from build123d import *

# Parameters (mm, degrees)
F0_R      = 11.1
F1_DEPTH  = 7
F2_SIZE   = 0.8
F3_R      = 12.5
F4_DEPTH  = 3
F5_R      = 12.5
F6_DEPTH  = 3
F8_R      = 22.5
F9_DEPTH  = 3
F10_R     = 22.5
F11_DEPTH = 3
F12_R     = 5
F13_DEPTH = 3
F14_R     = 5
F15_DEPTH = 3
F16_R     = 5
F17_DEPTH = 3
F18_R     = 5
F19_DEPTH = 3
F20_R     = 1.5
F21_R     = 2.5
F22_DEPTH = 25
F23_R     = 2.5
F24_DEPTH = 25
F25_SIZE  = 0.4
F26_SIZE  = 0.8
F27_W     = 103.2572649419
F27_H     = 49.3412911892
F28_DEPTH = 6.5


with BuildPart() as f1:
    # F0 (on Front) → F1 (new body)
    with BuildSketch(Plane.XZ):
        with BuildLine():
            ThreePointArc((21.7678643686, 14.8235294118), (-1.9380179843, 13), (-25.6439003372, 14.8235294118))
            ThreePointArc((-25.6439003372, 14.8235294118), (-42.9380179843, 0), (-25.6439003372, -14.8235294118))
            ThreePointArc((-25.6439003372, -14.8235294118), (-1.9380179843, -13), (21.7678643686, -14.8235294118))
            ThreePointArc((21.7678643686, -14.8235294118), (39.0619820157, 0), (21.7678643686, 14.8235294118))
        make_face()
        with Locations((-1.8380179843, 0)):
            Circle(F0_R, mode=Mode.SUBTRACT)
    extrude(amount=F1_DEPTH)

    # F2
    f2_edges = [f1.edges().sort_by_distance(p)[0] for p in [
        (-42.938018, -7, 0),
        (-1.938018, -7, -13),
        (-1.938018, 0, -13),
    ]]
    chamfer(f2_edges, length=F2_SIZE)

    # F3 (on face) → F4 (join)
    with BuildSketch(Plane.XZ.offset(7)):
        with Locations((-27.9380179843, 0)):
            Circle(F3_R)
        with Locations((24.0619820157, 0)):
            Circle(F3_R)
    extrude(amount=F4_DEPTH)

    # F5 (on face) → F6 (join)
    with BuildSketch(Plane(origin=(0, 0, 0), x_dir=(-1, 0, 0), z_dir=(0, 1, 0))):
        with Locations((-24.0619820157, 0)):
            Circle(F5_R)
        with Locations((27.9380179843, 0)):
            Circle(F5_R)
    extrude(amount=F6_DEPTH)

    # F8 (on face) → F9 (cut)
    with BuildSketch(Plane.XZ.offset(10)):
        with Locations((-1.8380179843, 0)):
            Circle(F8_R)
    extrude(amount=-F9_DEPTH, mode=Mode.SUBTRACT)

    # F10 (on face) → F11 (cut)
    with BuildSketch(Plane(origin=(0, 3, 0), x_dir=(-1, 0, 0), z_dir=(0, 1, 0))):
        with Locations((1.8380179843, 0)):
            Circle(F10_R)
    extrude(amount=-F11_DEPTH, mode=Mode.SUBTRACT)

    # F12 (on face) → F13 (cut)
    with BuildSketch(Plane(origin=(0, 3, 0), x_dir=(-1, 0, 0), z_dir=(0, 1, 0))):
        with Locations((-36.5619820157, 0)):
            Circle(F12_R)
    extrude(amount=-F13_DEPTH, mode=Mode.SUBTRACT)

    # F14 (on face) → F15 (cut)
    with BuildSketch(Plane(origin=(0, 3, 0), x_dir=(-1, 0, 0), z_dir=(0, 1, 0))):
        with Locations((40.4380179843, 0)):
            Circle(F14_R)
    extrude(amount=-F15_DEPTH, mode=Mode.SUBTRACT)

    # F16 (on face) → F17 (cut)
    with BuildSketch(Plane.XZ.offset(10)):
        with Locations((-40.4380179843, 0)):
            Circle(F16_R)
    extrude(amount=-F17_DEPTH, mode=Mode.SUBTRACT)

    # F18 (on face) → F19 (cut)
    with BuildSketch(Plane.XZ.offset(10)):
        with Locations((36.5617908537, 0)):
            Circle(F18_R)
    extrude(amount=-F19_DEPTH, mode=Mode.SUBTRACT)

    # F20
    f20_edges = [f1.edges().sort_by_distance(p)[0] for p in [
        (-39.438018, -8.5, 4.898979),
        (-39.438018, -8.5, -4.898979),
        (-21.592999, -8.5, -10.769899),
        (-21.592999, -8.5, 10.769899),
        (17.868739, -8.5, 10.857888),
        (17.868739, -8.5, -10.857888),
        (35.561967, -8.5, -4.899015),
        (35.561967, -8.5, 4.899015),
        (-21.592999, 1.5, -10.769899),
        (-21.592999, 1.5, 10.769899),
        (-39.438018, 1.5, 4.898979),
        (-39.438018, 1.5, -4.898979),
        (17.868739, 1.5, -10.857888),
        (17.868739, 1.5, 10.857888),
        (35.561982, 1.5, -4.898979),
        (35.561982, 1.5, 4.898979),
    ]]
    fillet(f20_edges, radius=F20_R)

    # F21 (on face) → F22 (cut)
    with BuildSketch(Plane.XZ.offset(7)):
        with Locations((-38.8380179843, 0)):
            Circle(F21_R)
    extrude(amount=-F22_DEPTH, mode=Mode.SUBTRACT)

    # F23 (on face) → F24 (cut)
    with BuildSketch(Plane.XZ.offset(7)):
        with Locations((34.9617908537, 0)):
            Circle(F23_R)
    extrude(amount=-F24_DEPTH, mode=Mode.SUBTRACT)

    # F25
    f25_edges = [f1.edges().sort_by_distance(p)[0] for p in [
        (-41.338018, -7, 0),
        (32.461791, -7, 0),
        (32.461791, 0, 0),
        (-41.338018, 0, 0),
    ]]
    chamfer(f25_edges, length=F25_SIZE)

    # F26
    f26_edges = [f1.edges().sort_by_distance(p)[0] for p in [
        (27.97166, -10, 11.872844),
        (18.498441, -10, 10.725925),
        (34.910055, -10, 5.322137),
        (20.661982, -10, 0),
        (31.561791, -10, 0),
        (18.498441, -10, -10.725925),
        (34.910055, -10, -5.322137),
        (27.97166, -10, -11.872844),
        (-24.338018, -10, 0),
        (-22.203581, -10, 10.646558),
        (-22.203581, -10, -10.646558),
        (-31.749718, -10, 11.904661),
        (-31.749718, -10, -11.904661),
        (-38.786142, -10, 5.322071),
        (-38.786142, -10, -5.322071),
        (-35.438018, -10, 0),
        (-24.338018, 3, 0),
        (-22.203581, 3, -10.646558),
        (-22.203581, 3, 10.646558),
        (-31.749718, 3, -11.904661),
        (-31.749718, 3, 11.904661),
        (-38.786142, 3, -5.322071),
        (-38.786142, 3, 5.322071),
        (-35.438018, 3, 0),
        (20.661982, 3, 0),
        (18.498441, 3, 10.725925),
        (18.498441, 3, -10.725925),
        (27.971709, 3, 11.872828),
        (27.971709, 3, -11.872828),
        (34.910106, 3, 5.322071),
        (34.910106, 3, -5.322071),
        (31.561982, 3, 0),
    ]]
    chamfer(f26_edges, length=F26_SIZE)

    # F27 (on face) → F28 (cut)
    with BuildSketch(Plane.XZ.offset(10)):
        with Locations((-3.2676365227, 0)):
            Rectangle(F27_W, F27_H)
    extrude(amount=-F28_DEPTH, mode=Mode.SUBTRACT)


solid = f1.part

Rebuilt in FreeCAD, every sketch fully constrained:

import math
import FreeCAD as App
import Part
import Sketcher
from FreeCAD import Vector


def edges_at(feature, points):
    """Names of the edges that pass closest to the given points."""
    edges = feature.Shape.Edges
    near = lambda p: min(range(len(edges)), key=lambda i: edges[i].distToShape(Part.Vertex(*p))[0])
    return sorted({f"Edge{near(p) + 1}" for p in points})


def add_polygon(sketch, points):
    """Adds a closed chain of lines whose ends are joined by coincident constraints."""
    first, n = sketch.GeometryCount, len(points)
    for a, b in zip(points, points[1:] + points[:1]):
        sketch.addGeometry(Part.LineSegment(App.Vector(*a, 0), App.Vector(*b, 0)), False)
    for i in range(n):
        sketch.addConstraint(Sketcher.Constraint("Coincident", first + i, 2, first + (i + 1) % n, 1))

doc = App.newDocument("Part")
params = doc.addObject("Spreadsheet::Sheet", "Params")
for row, (alias, value) in enumerate([
    ("sketch1_radius", "155 mm"),
    ("sketch1_radius2", "15 mm"),
    ("sketch1_diameter", "22.2 mm"),
    ("pad1_length", "7 mm"),
    ("chamfer_size", "0.8 mm"),
    ("sketch2_diameter", "25 mm"),
    ("pad2_length", "3 mm"),
    ("sketch3_diameter", "25 mm"),
    ("pad3_length", "3 mm"),
    ("sketch4_diameter", "45 mm"),
    ("pocket1_length", "3 mm"),
    ("sketch5_diameter", "45 mm"),
    ("pocket2_length", "3 mm"),
    ("sketch6_diameter", "10 mm"),
    ("pocket3_length", "3 mm"),
    ("sketch7_diameter", "10 mm"),
    ("pocket4_length", "3 mm"),
    ("sketch8_diameter", "10 mm"),
    ("pocket5_length", "3 mm"),
    ("sketch9_diameter", "10 mm"),
    ("pocket6_length", "3 mm"),
    ("fillet_radius", "1.5 mm"),
    ("sketch10_diameter", "5 mm"),
    ("pocket7_length", "25 mm"),
    ("sketch11_diameter", "5 mm"),
    ("pocket8_length", "25 mm"),
    ("chamfer2_size", "0.4 mm"),
    ("chamfer3_size", "0.8 mm"),
    ("pocket9_length", "6.5 mm"),
], start=1):
    params.set(f"A{row}", alias)
    params.set(f"B{row}", "=" + value)
    params.setAlias(f"B{row}", alias)

body = doc.addObject("PartDesign::Body", "Body")

# Sketch on XZ plane
sketch1 = doc.addObject("Sketcher::SketchObject", "Sketch")
body.addObject(sketch1)
sketch1.AttachmentSupport = (doc.XZ_Plane, [""])
sketch1.MapMode = "FlatFace"
sketch1.addGeometry([
    Part.ArcOfCircle(Part.Circle(Vector(-2, 168, 0), Vector(0, 0, 1), 155), math.radians(-98.8), math.radians(-81.2)),  # 0
    Part.ArcOfCircle(Part.Circle(Vector(-28, 0, 0), Vector(0, 0, 1), 15), math.radians(81), math.radians(279)),  # 1
    Part.ArcOfCircle(Part.Circle(Vector(-2, -168, 0), Vector(0, 0, 1), 155), math.radians(81.2), math.radians(98.8)),  # 2
    Part.ArcOfCircle(Part.Circle(Vector(24, 0, 0), Vector(0, 0, 1), 15), math.radians(-99), math.radians(99)),  # 3
    Part.Circle(Vector(-2, 0, 0), Vector(0, 0, 1), 11),  # 4
], False)
sketch1.addConstraint([
    Sketcher.Constraint("Tangent", 0, 1, 1, 1),
    Sketcher.Constraint("Tangent", 1, 2, 2, 2),
    Sketcher.Constraint("Tangent", 2, 1, 3, 1),
    Sketcher.Constraint("Tangent", 3, 2, 0, 2),
    Sketcher.Constraint("Equal", 0, 2),
    Sketcher.Constraint("Equal", 1, 3),
    Sketcher.Constraint("Symmetric", 0, 3, 2, 3, -1),
    Sketcher.Constraint("PointOnObject", 4, 3, -1),
    Sketcher.Constraint("Radius", 0, 155.0),
    Sketcher.Constraint("Radius", 1, 15.0),
    Sketcher.Constraint("Diameter", 4, 22.2),
    Sketcher.Constraint("DistanceY", -1, 1, 0, 3, 168.0),
    Sketcher.Constraint("DistanceX", 4, 3, 3, 3, 25.9),
    Sketcher.Constraint("DistanceX", 0, 1, -1, 1, 25.6439),
])
sketch1.setExpression("Constraints[8]", "Params.sketch1_radius")
sketch1.setExpression("Constraints[9]", "Params.sketch1_radius2")
sketch1.setExpression("Constraints[10]", "Params.sketch1_diameter")
pad1 = doc.addObject("PartDesign::Pad", "Pad")
body.addObject(pad1)
pad1.Profile = sketch1
pad1.setExpression("Length", "Params.pad1_length")
doc.recompute()

chamfer = doc.addObject("PartDesign::Chamfer", "Chamfer")
body.addObject(chamfer)
chamfer.Base = (pad1, edges_at(pad1, [(-42.938, -7, 0), (-1.938, -7, -13), (-1.938, 0, -13)]))
chamfer.setExpression("Size", "Params.chamfer_size")

# Sketch on XZ plane
sketch2 = doc.addObject("Sketcher::SketchObject", "Sketch001")
body.addObject(sketch2)
sketch2.AttachmentSupport = (doc.XZ_Plane, [""])
sketch2.MapMode = "FlatFace"
sketch2.AttachmentOffset = App.Placement(Vector(0, 0, 7), App.Rotation())
sketch2.addGeometry([
    Part.Circle(Vector(-28, 0, 0), Vector(0, 0, 1), 12),
    Part.Circle(Vector(24, 0, 0), Vector(0, 0, 1), 12),
], False)
sketch2.addConstraint([
    Sketcher.Constraint("Equal", 0, 1),
    Sketcher.Constraint("PointOnObject", 0, 3, -1),
    Sketcher.Constraint("PointOnObject", 1, 3, -1),
    Sketcher.Constraint("Diameter", 0, 25.0),
    Sketcher.Constraint("DistanceX", 0, 3, 1, 3, 52.0),
    Sketcher.Constraint("DistanceX", 0, 3, -1, 1, 27.938018),
])
sketch2.setExpression("Constraints[3]", "Params.sketch2_diameter")
pad2 = doc.addObject("PartDesign::Pad", "Pad001")
body.addObject(pad2)
pad2.Profile = sketch2
pad2.setExpression("Length", "Params.pad2_length")

# Sketch on XZ plane
sketch3 = doc.addObject("Sketcher::SketchObject", "Sketch002")
body.addObject(sketch3)
sketch3.AttachmentSupport = (doc.XZ_Plane, [""])
sketch3.MapMode = "FlatFace"
sketch3.addGeometry([
    Part.Circle(Vector(24, 0, 0), Vector(0, 0, 1), 12),
    Part.Circle(Vector(-28, 0, 0), Vector(0, 0, 1), 12),
], False)
sketch3.addConstraint([
    Sketcher.Constraint("Equal", 0, 1),
    Sketcher.Constraint("PointOnObject", 0, 3, -1),
    Sketcher.Constraint("PointOnObject", 1, 3, -1),
    Sketcher.Constraint("Diameter", 0, 25.0),
    Sketcher.Constraint("DistanceX", 1, 3, 0, 3, 52.0),
    Sketcher.Constraint("DistanceX", -1, 1, 0, 3, 24.061982),
])
sketch3.setExpression("Constraints[3]", "Params.sketch3_diameter")
pad3 = doc.addObject("PartDesign::Pad", "Pad002")
body.addObject(pad3)
pad3.Profile = sketch3
pad3.setExpression("Length", "Params.pad3_length")
pad3.Reversed = True

# Sketch on XZ plane
sketch4 = doc.addObject("Sketcher::SketchObject", "Sketch003")
body.addObject(sketch4)
sketch4.AttachmentSupport = (doc.XZ_Plane, [""])
sketch4.MapMode = "FlatFace"
sketch4.AttachmentOffset = App.Placement(Vector(0, 0, 10), App.Rotation())
sketch4.addGeometry(Part.Circle(Vector(-2, 0, 0), Vector(0, 0, 1), 22), False)
sketch4.addConstraint([
    Sketcher.Constraint("PointOnObject", 0, 3, -1),
    Sketcher.Constraint("Diameter", 0, 45.0),
    Sketcher.Constraint("DistanceX", 0, 3, -1, 1, 1.838018),
])
sketch4.setExpression("Constraints[1]", "Params.sketch4_diameter")
pocket1 = doc.addObject("PartDesign::Pocket", "Pocket")
body.addObject(pocket1)
pocket1.Profile = sketch4
pocket1.setExpression("Length", "Params.pocket1_length")

# Sketch on XZ plane
sketch5 = doc.addObject("Sketcher::SketchObject", "Sketch004")
body.addObject(sketch5)
sketch5.AttachmentSupport = (doc.XZ_Plane, [""])
sketch5.MapMode = "FlatFace"
sketch5.AttachmentOffset = App.Placement(Vector(0, 0, -3), App.Rotation())
sketch5.addGeometry(Part.Circle(Vector(-2, 0, 0), Vector(0, 0, 1), 22), False)
sketch5.addConstraint([
    Sketcher.Constraint("PointOnObject", 0, 3, -1),
    Sketcher.Constraint("Diameter", 0, 45.0),
    Sketcher.Constraint("DistanceX", 0, 3, -1, 1, 1.838018),
])
sketch5.setExpression("Constraints[1]", "Params.sketch5_diameter")
pocket2 = doc.addObject("PartDesign::Pocket", "Pocket001")
body.addObject(pocket2)
pocket2.Profile = sketch5
pocket2.setExpression("Length", "Params.pocket2_length")
pocket2.Reversed = True

# Sketch on XZ plane
sketch6 = doc.addObject("Sketcher::SketchObject", "Sketch005")
body.addObject(sketch6)
sketch6.AttachmentSupport = (doc.XZ_Plane, [""])
sketch6.MapMode = "FlatFace"
sketch6.AttachmentOffset = App.Placement(Vector(0, 0, -3), App.Rotation())
sketch6.addGeometry(Part.Circle(Vector(37, 0, 0), Vector(0, 0, 1), 5), False)
sketch6.addConstraint([
    Sketcher.Constraint("PointOnObject", 0, 3, -1),
    Sketcher.Constraint("Diameter", 0, 10.0),
    Sketcher.Constraint("DistanceX", -1, 1, 0, 3, 36.561982),
])
sketch6.setExpression("Constraints[1]", "Params.sketch6_diameter")
pocket3 = doc.addObject("PartDesign::Pocket", "Pocket002")
body.addObject(pocket3)
pocket3.Profile = sketch6
pocket3.setExpression("Length", "Params.pocket3_length")
pocket3.Reversed = True

# Sketch on XZ plane
sketch7 = doc.addObject("Sketcher::SketchObject", "Sketch006")
body.addObject(sketch7)
sketch7.AttachmentSupport = (doc.XZ_Plane, [""])
sketch7.MapMode = "FlatFace"
sketch7.AttachmentOffset = App.Placement(Vector(0, 0, -3), App.Rotation())
sketch7.addGeometry(Part.Circle(Vector(-40, 0, 0), Vector(0, 0, 1), 5), False)
sketch7.addConstraint([
    Sketcher.Constraint("PointOnObject", 0, 3, -1),
    Sketcher.Constraint("Diameter", 0, 10.0),
    Sketcher.Constraint("DistanceX", 0, 3, -1, 1, 40.438018),
])
sketch7.setExpression("Constraints[1]", "Params.sketch7_diameter")
pocket4 = doc.addObject("PartDesign::Pocket", "Pocket003")
body.addObject(pocket4)
pocket4.Profile = sketch7
pocket4.setExpression("Length", "Params.pocket4_length")
pocket4.Reversed = True

# Sketch on XZ plane
sketch8 = doc.addObject("Sketcher::SketchObject", "Sketch007")
body.addObject(sketch8)
sketch8.AttachmentSupport = (doc.XZ_Plane, [""])
sketch8.MapMode = "FlatFace"
sketch8.AttachmentOffset = App.Placement(Vector(0, 0, 10), App.Rotation())
sketch8.addGeometry(Part.Circle(Vector(-40, 0, 0), Vector(0, 0, 1), 5), False)
sketch8.addConstraint([
    Sketcher.Constraint("PointOnObject", 0, 3, -1),
    Sketcher.Constraint("Diameter", 0, 10.0),
    Sketcher.Constraint("DistanceX", 0, 3, -1, 1, 40.438018),
])
sketch8.setExpression("Constraints[1]", "Params.sketch8_diameter")
pocket5 = doc.addObject("PartDesign::Pocket", "Pocket004")
body.addObject(pocket5)
pocket5.Profile = sketch8
pocket5.setExpression("Length", "Params.pocket5_length")

# Sketch on XZ plane
sketch9 = doc.addObject("Sketcher::SketchObject", "Sketch008")
body.addObject(sketch9)
sketch9.AttachmentSupport = (doc.XZ_Plane, [""])
sketch9.MapMode = "FlatFace"
sketch9.AttachmentOffset = App.Placement(Vector(0, 0, 10), App.Rotation())
sketch9.addGeometry(Part.Circle(Vector(37, 0, 0), Vector(0, 0, 1), 5), False)
sketch9.addConstraint([
    Sketcher.Constraint("PointOnObject", 0, 3, -1),
    Sketcher.Constraint("Diameter", 0, 10.0),
    Sketcher.Constraint("DistanceX", -1, 1, 0, 3, 36.561791),
])
sketch9.setExpression("Constraints[1]", "Params.sketch9_diameter")
pocket6 = doc.addObject("PartDesign::Pocket", "Pocket005")
body.addObject(pocket6)
pocket6.Profile = sketch9
pocket6.setExpression("Length", "Params.pocket6_length")
doc.recompute()

fillet = doc.addObject("PartDesign::Fillet", "Fillet")
body.addObject(fillet)
fillet.Base = (pocket6, edges_at(pocket6, [
    (-39.438, -8.5, 4.899),
    (-39.438, -8.5, -4.899),
    (-21.593, -8.5, -10.77),
    (-21.593, -8.5, 10.77),
    (17.869, -8.5, 10.858),
    (17.869, -8.5, -10.858),
    (35.562, -8.5, -4.899),
    (35.562, -8.5, 4.899),
    (-21.593, 1.5, -10.77),
    (-21.593, 1.5, 10.77),
    (-39.438, 1.5, 4.899),
    (-39.438, 1.5, -4.899),
    (17.869, 1.5, -10.858),
    (17.869, 1.5, 10.858),
    (35.562, 1.5, -4.899),
    (35.562, 1.5, 4.899),
]))
fillet.setExpression("Radius", "Params.fillet_radius")

# Sketch on XZ plane
sketch10 = doc.addObject("Sketcher::SketchObject", "Sketch009")
body.addObject(sketch10)
sketch10.AttachmentSupport = (doc.XZ_Plane, [""])
sketch10.MapMode = "FlatFace"
sketch10.AttachmentOffset = App.Placement(Vector(0, 0, 7), App.Rotation())
sketch10.addGeometry(Part.Circle(Vector(-38.8, 0, 0), Vector(0, 0, 1), 2.5), False)
sketch10.addConstraint([
    Sketcher.Constraint("PointOnObject", 0, 3, -1),
    Sketcher.Constraint("Diameter", 0, 5.0),
    Sketcher.Constraint("DistanceX", 0, 3, -1, 1, 38.838018),
])
sketch10.setExpression("Constraints[1]", "Params.sketch10_diameter")
pocket7 = doc.addObject("PartDesign::Pocket", "Pocket006")
body.addObject(pocket7)
pocket7.Profile = sketch10
pocket7.setExpression("Length", "Params.pocket7_length")

# Sketch on XZ plane
sketch11 = doc.addObject("Sketcher::SketchObject", "Sketch010")
body.addObject(sketch11)
sketch11.AttachmentSupport = (doc.XZ_Plane, [""])
sketch11.MapMode = "FlatFace"
sketch11.AttachmentOffset = App.Placement(Vector(0, 0, 7), App.Rotation())
sketch11.addGeometry(Part.Circle(Vector(35, 0, 0), Vector(0, 0, 1), 2.5), False)
sketch11.addConstraint([
    Sketcher.Constraint("PointOnObject", 0, 3, -1),
    Sketcher.Constraint("Diameter", 0, 5.0),
    Sketcher.Constraint("DistanceX", -1, 1, 0, 3, 34.961791),
])
sketch11.setExpression("Constraints[1]", "Params.sketch11_diameter")
pocket8 = doc.addObject("PartDesign::Pocket", "Pocket007")
body.addObject(pocket8)
pocket8.Profile = sketch11
pocket8.setExpression("Length", "Params.pocket8_length")
doc.recompute()

chamfer2 = doc.addObject("PartDesign::Chamfer", "Chamfer001")
body.addObject(chamfer2)
chamfer2.Base = (pocket8, edges_at(pocket8, [
    (-41.338, -7, 0),
    (32.462, -7, 0),
    (32.462, 0, 0),
    (-41.338, 0, 0),
]))
chamfer2.setExpression("Size", "Params.chamfer2_size")
doc.recompute()

chamfer3 = doc.addObject("PartDesign::Chamfer", "Chamfer002")
body.addObject(chamfer3)
chamfer3.Base = (chamfer2, edges_at(chamfer2, [
    (27.972, -10, 11.873),
    (18.498, -10, 10.726),
    (34.91, -10, 5.322),
    (20.662, -10, 0),
    (31.562, -10, 0),
    (18.498, -10, -10.726),
    (34.91, -10, -5.322),
    (27.972, -10, -11.873),
    (-24.338, -10, 0),
    (-22.204, -10, 10.647),
    (-22.204, -10, -10.647),
    (-31.75, -10, 11.905),
    (-31.75, -10, -11.905),
    (-38.786, -10, 5.322),
    (-38.786, -10, -5.322),
    (-35.438, -10, 0),
    (-24.338, 3, 0),
    (-22.204, 3, -10.647),
    (-22.204, 3, 10.647),
    (-31.75, 3, -11.905),
    (-31.75, 3, 11.905),
    (-38.786, 3, -5.322),
    (-38.786, 3, 5.322),
    (-35.438, 3, 0),
    (20.662, 3, 0),
    (18.498, 3, 10.726),
    (18.498, 3, -10.726),
    (27.972, 3, 11.873),
    (27.972, 3, -11.873),
    (34.91, 3, 5.322),
    (34.91, 3, -5.322),
    (31.562, 3, 0),
]))
chamfer3.setExpression("Size", "Params.chamfer3_size")

# Sketch on XZ plane
sketch12 = doc.addObject("Sketcher::SketchObject", "Sketch011")
body.addObject(sketch12)
sketch12.AttachmentSupport = (doc.XZ_Plane, [""])
sketch12.MapMode = "FlatFace"
sketch12.AttachmentOffset = App.Placement(Vector(0, 0, 10), App.Rotation())
add_polygon(sketch12, [(-55, 25), (-55, -25), (48, -25), (48, 25)])  # lines 0-3
sketch12.addConstraint([
    Sketcher.Constraint("Vertical", 0),
    Sketcher.Constraint("Horizontal", 1),
    Sketcher.Constraint("Vertical", 2),
    Sketcher.Constraint("Horizontal", 3),
    Sketcher.Constraint("DistanceY", 0, 2, 0, 1, 49.341291),
    Sketcher.Constraint("DistanceX", 1, 1, 1, 2, 103.257265),
    Sketcher.Constraint("DistanceX", 0, 2, -1, 1, 54.896269),
    Sketcher.Constraint("DistanceY", 0, 2, -1, 1, 24.670646),
])
pocket9 = doc.addObject("PartDesign::Pocket", "Pocket008")
body.addObject(pocket9)
pocket9.Profile = sketch12
pocket9.setExpression("Length", "Params.pocket9_length")

doc.recompute()
